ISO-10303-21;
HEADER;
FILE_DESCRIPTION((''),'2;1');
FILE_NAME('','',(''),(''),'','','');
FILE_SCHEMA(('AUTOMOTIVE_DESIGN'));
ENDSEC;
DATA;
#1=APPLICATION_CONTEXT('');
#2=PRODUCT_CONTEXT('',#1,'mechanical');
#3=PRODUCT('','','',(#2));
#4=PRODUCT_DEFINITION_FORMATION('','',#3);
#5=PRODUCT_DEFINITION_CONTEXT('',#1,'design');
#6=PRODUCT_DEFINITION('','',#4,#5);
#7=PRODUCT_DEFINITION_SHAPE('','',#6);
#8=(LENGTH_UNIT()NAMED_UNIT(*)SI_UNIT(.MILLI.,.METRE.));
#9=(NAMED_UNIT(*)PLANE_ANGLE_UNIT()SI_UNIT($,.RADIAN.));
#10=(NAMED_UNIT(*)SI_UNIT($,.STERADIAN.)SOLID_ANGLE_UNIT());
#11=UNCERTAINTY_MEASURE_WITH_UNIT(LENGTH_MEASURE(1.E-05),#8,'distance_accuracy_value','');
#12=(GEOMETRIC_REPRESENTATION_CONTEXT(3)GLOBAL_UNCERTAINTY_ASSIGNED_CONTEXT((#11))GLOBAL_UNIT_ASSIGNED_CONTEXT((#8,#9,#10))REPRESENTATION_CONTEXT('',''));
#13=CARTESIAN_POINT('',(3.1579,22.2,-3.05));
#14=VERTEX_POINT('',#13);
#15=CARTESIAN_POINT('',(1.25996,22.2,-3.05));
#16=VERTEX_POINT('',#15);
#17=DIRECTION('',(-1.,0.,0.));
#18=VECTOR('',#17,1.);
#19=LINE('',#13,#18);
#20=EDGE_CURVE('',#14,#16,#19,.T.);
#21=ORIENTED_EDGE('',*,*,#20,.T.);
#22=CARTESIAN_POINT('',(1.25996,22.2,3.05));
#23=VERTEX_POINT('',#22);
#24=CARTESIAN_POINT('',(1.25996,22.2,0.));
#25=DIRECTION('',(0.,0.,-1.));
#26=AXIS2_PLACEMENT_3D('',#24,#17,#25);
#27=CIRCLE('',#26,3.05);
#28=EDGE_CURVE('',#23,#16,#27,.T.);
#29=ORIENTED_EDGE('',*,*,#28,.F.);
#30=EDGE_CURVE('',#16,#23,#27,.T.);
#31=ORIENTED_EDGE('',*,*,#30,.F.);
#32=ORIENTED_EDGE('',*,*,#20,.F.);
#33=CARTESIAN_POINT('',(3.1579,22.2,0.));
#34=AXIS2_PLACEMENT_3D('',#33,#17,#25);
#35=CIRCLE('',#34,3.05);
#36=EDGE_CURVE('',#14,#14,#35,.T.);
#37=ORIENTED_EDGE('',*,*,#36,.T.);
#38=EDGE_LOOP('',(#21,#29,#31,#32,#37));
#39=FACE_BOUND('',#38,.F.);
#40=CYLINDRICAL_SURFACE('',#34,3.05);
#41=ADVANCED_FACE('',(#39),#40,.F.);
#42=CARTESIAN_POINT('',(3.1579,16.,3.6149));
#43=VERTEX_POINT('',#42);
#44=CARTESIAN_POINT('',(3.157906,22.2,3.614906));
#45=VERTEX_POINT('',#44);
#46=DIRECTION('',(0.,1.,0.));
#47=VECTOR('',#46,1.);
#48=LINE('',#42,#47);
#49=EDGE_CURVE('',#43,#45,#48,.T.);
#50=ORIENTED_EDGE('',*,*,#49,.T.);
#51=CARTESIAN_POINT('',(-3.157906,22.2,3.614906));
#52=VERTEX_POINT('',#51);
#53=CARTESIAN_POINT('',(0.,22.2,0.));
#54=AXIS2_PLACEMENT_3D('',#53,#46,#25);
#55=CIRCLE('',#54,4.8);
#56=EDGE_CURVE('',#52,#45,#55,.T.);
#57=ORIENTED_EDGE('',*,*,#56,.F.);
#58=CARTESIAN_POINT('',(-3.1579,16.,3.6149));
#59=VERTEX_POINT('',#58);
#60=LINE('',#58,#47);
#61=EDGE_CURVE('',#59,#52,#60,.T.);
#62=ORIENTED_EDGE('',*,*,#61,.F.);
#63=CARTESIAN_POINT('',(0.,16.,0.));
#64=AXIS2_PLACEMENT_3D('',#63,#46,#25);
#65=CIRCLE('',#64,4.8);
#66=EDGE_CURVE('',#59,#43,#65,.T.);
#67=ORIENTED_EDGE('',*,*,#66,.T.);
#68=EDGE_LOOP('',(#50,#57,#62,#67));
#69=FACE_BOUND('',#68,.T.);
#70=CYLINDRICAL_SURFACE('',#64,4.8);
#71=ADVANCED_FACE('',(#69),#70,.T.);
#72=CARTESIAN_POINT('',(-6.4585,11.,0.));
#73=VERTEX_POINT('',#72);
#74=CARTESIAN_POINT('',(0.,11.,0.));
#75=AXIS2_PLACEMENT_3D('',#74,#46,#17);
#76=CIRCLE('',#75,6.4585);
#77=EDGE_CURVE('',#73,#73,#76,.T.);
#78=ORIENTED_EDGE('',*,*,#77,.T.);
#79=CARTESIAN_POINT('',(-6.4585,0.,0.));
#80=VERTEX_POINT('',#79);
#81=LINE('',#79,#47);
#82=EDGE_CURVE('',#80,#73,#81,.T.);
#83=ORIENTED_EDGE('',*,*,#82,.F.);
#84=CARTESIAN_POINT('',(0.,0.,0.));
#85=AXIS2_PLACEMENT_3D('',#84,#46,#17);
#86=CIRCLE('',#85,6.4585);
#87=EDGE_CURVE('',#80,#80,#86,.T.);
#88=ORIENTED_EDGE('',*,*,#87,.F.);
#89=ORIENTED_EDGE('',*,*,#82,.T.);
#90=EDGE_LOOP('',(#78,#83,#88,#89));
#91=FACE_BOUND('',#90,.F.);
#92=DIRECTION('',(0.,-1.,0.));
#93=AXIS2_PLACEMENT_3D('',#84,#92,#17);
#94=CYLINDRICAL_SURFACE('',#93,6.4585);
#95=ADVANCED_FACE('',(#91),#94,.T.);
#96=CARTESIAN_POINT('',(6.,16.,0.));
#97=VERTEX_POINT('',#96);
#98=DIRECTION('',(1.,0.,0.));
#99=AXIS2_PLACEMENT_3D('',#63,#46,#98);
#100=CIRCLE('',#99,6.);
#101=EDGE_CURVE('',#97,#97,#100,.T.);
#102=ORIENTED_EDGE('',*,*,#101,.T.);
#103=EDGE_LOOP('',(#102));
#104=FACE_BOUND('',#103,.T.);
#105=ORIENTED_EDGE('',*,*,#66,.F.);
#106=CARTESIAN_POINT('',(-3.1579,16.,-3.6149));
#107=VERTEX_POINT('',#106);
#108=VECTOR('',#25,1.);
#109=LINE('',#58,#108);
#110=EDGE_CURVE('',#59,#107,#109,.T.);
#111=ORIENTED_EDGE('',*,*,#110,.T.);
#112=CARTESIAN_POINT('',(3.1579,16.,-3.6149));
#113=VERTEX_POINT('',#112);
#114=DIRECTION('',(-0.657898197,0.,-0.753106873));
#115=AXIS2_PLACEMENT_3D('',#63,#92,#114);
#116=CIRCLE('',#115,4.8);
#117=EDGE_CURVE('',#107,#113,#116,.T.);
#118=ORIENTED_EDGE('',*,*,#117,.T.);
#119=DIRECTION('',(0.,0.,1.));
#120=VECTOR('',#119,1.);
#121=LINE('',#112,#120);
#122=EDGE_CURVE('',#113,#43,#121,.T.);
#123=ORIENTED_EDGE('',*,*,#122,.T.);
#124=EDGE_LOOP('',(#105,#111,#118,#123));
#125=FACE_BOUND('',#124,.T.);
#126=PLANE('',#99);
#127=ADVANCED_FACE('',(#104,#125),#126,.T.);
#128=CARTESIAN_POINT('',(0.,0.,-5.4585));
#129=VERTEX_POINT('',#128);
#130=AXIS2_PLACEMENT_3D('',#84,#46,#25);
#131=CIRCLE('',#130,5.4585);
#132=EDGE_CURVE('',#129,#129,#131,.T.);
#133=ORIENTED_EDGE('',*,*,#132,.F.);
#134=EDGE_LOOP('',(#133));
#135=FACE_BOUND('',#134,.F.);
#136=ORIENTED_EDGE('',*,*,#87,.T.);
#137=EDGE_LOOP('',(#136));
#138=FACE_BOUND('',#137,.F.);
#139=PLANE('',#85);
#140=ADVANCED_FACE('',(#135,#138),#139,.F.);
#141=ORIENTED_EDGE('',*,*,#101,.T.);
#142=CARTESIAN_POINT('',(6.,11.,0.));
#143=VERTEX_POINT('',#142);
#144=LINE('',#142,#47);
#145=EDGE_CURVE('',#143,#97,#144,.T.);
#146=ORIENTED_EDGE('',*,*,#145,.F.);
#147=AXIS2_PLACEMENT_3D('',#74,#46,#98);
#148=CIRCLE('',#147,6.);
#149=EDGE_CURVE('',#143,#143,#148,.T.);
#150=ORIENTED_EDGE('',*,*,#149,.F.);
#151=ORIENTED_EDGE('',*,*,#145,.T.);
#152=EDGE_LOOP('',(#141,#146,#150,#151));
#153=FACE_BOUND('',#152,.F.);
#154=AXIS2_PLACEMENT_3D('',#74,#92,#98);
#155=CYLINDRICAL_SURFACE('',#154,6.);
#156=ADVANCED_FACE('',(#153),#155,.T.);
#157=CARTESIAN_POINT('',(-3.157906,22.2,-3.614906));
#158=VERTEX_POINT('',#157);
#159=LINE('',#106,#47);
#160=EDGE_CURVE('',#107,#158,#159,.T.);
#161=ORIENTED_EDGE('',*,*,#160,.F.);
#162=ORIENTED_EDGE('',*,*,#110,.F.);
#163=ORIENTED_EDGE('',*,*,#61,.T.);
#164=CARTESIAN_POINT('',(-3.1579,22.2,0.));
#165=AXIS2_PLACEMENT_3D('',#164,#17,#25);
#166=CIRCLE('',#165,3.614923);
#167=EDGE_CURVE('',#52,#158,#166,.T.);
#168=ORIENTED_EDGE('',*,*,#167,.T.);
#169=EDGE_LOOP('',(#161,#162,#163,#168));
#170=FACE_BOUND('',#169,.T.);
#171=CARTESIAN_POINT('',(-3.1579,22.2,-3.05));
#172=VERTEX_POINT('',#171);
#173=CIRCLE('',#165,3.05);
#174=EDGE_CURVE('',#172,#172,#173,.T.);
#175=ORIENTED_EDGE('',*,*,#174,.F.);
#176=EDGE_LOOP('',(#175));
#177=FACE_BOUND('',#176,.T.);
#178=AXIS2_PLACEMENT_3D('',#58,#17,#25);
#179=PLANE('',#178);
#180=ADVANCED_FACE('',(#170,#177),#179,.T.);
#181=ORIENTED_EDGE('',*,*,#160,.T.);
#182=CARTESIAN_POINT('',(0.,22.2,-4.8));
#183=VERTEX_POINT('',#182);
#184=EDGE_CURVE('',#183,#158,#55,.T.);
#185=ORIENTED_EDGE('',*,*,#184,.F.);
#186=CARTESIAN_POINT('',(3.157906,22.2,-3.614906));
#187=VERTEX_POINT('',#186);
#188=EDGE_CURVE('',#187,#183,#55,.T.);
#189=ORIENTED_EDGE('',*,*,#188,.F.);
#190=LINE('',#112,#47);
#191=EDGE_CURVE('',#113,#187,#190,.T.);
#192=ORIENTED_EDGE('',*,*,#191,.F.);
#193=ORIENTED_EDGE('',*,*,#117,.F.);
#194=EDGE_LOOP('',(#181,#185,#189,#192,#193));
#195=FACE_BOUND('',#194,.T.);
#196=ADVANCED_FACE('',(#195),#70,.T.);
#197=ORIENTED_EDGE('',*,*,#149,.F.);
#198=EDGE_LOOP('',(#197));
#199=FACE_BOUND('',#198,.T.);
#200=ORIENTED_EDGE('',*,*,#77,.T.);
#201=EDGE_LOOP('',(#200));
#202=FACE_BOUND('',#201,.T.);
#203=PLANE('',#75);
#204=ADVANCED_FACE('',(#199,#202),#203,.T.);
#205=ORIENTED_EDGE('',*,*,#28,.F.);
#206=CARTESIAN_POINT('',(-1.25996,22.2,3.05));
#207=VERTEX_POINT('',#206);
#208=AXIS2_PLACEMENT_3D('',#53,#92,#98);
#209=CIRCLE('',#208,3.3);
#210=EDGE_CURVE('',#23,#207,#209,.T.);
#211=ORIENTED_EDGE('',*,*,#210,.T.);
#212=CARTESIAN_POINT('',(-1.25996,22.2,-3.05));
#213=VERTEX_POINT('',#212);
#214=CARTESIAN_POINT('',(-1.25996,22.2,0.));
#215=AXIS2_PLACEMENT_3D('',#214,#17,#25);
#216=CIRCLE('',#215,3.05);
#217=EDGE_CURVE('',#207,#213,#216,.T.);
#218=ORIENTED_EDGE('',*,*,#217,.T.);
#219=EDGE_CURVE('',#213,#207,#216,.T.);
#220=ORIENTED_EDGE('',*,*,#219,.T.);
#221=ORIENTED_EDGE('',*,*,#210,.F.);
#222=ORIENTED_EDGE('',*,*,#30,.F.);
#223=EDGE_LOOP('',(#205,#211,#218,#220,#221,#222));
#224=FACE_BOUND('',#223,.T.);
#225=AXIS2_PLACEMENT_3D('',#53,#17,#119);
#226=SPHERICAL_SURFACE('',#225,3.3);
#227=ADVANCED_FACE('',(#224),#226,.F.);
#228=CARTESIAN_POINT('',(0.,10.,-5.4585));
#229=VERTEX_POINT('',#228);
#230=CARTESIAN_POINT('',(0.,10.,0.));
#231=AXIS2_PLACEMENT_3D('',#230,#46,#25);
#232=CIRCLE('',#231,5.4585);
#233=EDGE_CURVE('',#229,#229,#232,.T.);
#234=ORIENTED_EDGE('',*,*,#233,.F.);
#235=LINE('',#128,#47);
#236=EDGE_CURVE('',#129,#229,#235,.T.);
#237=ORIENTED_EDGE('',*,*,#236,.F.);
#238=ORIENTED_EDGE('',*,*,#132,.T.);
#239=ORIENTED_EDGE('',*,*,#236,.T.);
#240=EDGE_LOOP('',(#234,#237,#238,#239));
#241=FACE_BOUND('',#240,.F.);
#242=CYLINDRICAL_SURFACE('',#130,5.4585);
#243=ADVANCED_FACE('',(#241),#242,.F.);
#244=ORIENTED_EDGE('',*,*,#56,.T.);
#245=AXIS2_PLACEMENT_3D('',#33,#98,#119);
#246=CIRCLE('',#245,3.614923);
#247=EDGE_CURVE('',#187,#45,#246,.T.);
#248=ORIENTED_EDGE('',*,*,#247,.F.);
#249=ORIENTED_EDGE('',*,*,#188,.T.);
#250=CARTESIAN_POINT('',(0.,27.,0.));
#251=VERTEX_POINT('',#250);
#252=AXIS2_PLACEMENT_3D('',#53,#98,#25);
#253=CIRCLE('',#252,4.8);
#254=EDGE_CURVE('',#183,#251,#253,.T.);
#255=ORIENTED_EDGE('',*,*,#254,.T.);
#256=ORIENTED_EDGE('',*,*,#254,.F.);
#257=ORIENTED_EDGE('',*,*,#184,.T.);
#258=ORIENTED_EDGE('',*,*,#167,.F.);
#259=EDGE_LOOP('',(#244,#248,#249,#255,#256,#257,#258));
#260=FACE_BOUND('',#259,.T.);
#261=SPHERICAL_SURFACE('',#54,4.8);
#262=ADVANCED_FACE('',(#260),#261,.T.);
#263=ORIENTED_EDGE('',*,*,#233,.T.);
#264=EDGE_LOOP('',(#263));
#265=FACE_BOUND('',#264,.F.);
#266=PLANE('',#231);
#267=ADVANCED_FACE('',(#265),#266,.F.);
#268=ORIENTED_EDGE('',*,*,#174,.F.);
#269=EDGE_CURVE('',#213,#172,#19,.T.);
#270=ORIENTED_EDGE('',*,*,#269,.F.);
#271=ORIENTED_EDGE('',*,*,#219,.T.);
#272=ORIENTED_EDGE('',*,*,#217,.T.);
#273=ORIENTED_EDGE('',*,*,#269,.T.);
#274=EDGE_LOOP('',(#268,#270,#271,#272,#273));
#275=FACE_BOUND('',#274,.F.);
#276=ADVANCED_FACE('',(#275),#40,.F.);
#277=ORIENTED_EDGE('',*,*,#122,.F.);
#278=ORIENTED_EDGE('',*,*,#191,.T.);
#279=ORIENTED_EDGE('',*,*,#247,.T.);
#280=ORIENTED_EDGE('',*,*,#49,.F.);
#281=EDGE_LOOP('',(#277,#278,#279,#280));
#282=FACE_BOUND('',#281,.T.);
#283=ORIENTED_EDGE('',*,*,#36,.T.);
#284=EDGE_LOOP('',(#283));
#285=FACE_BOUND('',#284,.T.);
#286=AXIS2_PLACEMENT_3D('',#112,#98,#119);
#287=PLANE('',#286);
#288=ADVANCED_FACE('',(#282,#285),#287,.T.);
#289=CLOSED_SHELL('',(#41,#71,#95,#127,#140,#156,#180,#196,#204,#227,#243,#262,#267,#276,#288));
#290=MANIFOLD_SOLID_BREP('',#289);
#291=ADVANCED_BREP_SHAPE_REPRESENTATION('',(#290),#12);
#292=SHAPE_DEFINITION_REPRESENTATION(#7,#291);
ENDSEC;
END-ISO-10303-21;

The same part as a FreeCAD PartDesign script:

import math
import FreeCAD as App
import Part
import Sketcher
from FreeCAD import Vector

doc = App.newDocument("Part")
body = doc.addObject("PartDesign::Body", "Body")

# Sketch on XZ plane
sketch1 = body.newObject("Sketcher::SketchObject", "Sketch")
sketch1.AttachmentSupport = (doc.getObject("XZ_Plane"), [""])
sketch1.MapMode = "FlatFace"
sketch1.addGeometry(Part.Circle(Vector(0, 0, 0), Vector(0, 0, 1), 6), False)
sketch1.addConstraint([
    Sketcher.Constraint("Coincident", 0, 3, -1, 1),
    Sketcher.Constraint("Diameter", 0, 12.917),
])
pad1 = body.newObject("PartDesign::Pad", "Pad")
pad1.Profile = sketch1
pad1.Length = 11
pad1.Reversed = True

# Sketch on XZ plane
sketch2 = body.newObject("Sketcher::SketchObject", "Sketch001")
sketch2.AttachmentSupport = (doc.getObject("XZ_Plane"), [""])
sketch2.MapMode = "FlatFace"
sketch2.AttachmentOffset = App.Placement(Vector(0, 0, -11), App.Rotation())
sketch2.addGeometry(Part.Circle(Vector(0, 0, 0), Vector(0, 0, 1), 6), False)
sketch2.addConstraint([
    Sketcher.Constraint("Coincident", 0, 3, -1, 1),
    Sketcher.Constraint("Diameter", 0, 12.0),
])
pad2 = body.newObject("PartDesign::Pad", "Pad001")
pad2.Profile = sketch2
pad2.Length = 5
pad2.Reversed = True

# Sketch on YZ plane
sketch3 = body.newObject("Sketcher::SketchObject", "Sketch002")
sketch3.AttachmentSupport = (doc.getObject("YZ_Plane"), [""])
sketch3.MapMode = "FlatFace"
sketch3.addGeometry([
    Part.LineSegment(Vector(16, 0, 0), Vector(16, -4.8, 0)),
    Part.LineSegment(Vector(16, -4.8, 0), Vector(22.2, -4.8, 0)),
    Part.ArcOfCircle(Part.Circle(Vector(22.2, 0, 0), Vector(0, 0, 1), 4.8), math.radians(-90), math.radians(0)),
    Part.LineSegment(Vector(27, 0, 0), Vector(16, 0, 0)),
], False)
sketch3.addConstraint([
    Sketcher.Constraint("Coincident", 0, 2, 1, 1),
    Sketcher.Constraint("Tangent", 1, 2, 2, 1),
    Sketcher.Constraint("Coincident", 2, 2, 3, 1),
    Sketcher.Constraint("Coincident", 3, 2, 0, 1),
    Sketcher.Constraint("Vertical", 0),
    Sketcher.Constraint("Horizontal", 1),
    Sketcher.Constraint("Horizontal", 3),
    Sketcher.Constraint("PointOnObject", 2, 3, -1),
    Sketcher.Constraint("PointOnObject", 2, 2, -1),
    Sketcher.Constraint("Radius", 2, 4.8),
    Sketcher.Constraint("DistanceX", -1, 1, 2, 3, 22.2),
    Sketcher.Constraint("DistanceX", 3, 2, 3, 1, 11.0),
])
revolution = body.newObject("PartDesign::Revolution", "Revolution")
revolution.Profile = sketch3
revolution.ReferenceAxis = (sketch3, ["H_Axis"])
revolution.Angle = 360

# Sketch on XZ plane
sketch4 = body.newObject("Sketcher::SketchObject", "Sketch003")
sketch4.AttachmentSupport = (doc.getObject("XZ_Plane"), [""])
sketch4.MapMode = "FlatFace"
sketch4.AttachmentOffset = App.Placement(Vector(0, 0, -16), App.Rotation())
sketch4.addGeometry([
    Part.ArcOfCircle(Part.Circle(Vector(0, 0, 0), Vector(0, 0, 1), 4.8), math.radians(-49), math.radians(49)),
    Part.LineSegment(Vector(3.2, 3.6, 0), Vector(3.2, -3.6, 0)),
    Part.LineSegment(Vector(-3.2, 3.6, 0), Vector(-3.2, -3.6, 0)),
    Part.ArcOfCircle(Part.Circle(Vector(0, 0, 0), Vector(0, 0, 1), 4.8), math.radians(131), math.radians(229)),
], False)
sketch4.addConstraint([
    Sketcher.Constraint("Coincident", 0, 1, 1, 2),
    Sketcher.Constraint("Coincident", 1, 1, 0, 2),
    Sketcher.Constraint("Coincident", 2, 1, 3, 1),
    Sketcher.Constraint("Coincident", 3, 2, 2, 2),
    Sketcher.Constraint("Vertical", 1),
    Sketcher.Constraint("Vertical", 2),
    Sketcher.Constraint("Coincident", 0, 3, -1, 1),
    Sketcher.Constraint("Coincident", 3, 3, -1, 1),
    Sketcher.Constraint("Equal", 0, 3),
    Sketcher.Constraint("Horizontal", 1, 1, 2, 1),
    Sketcher.Constraint("Radius", 0, 4.8),
    Sketcher.Constraint("DistanceY", 1, 2, 1, 1, 7.2298),
])
pocket1 = body.newObject("PartDesign::Pocket", "Pocket")
pocket1.Profile = sketch4
pocket1.Length = 13.25

# Sketch on YZ plane
sketch5 = body.newObject("Sketcher::SketchObject", "Sketch004")
sketch5.AttachmentSupport = (doc.getObject("YZ_Plane"), [""])
sketch5.MapMode = "FlatFace"
sketch5.AttachmentOffset = App.Placement(Vector(0, 0, 3.1579), App.Rotation())
sketch5.addGeometry(Part.Circle(Vector(22.2, 0, 0), Vector(0, 0, 1), 3), False)
sketch5.addConstraint([
    Sketcher.Constraint("PointOnObject", 0, 3, -1),
    Sketcher.Constraint("Diameter", 0, 6.1),
    Sketcher.Constraint("DistanceX", -1, 1, 0, 3, 22.2),
])
doc.recompute()
hole = body.newObject("PartDesign::Hole", "Hole")
hole.Profile = sketch5
hole.ThreadType = "None"
hole.Diameter = 6.1
hole.DepthType = "Dimension"
hole.Depth = 8
hole.DrillPoint = "Angled"
hole.DrillPointAngle = 118

# Sketch on XZ plane
sketch6 = body.newObject("Sketcher::SketchObject", "Sketch005")
sketch6.AttachmentSupport = (doc.getObject("XZ_Plane"), [""])
sketch6.MapMode = "FlatFace"
sketch6.addGeometry(Part.Circle(Vector(0, 0, 0), Vector(0, 0, 1), 5), False)
sketch6.addConstraint([
    Sketcher.Constraint("Coincident", 0, 3, -1, 1),
    Sketcher.Constraint("Diameter", 0, 10.917),
])
doc.recompute()
hole2 = body.newObject("PartDesign::Hole", "Hole001")
hole2.Profile = sketch6
hole2.ThreadType = "None"
hole2.Diameter = 10.917
hole2.DepthType = "Dimension"
hole2.Depth = 10
hole2.DrillPoint = "Flat"

# Sketch on XZ plane
sketch7 = body.newObject("Sketcher::SketchObject", "Sketch006")
sketch7.AttachmentSupport = (doc.getObject("XZ_Plane"), [""])
sketch7.MapMode = "FlatFace"
sketch7.AttachmentOffset = App.Placement(Vector(0, 0, -22.2), App.Rotation())
sketch7.addGeometry([
    Part.ArcOfCircle(Part.Circle(Vector(0, 0, 0), Vector(0, 0, 1), 3.3), math.radians(0), math.radians(180)),
    Part.LineSegment(Vector(-3.3, 0, 0), Vector(3.3, 0, 0)),
], False)
sketch7.addConstraint([
    Sketcher.Constraint("Coincident", 0, 1, 1, 2),
    Sketcher.Constraint("Coincident", 1, 1, 0, 2),
    Sketcher.Constraint("Horizontal", 1),
    Sketcher.Constraint("Coincident", 0, 3, -1, 1),
    Sketcher.Constraint("PointOnObject", 0, 1, -1),
    Sketcher.Constraint("Radius", 0, 3.3),
])
groove = body.newObject("PartDesign::Groove", "Groove")
groove.Profile = sketch7
groove.ReferenceAxis = (sketch7, ["H_Axis"])
groove.Angle = 360

doc.recompute()
